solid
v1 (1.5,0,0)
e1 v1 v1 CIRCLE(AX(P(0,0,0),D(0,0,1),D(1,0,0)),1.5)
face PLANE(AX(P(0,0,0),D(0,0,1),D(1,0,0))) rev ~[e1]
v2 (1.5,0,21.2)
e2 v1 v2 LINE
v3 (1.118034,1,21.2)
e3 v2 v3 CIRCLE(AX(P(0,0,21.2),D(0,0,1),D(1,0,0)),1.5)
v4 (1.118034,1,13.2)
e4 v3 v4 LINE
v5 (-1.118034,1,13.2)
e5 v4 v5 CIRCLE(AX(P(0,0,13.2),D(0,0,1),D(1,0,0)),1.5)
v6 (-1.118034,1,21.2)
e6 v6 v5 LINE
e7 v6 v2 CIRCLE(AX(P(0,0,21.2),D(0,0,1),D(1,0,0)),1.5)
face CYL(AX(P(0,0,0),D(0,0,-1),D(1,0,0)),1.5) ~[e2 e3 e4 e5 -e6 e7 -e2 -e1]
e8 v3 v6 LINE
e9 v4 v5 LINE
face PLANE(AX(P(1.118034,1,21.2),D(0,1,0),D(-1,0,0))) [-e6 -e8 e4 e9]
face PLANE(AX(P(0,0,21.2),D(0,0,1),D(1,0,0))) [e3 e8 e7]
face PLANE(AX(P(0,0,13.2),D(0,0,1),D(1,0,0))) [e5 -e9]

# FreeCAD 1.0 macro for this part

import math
import FreeCAD as App
import Part
import Sketcher
Q = App.Units.Quantity

doc = App.newDocument("Part")
body = doc.addObject("PartDesign::Body", "Body")

# Sketch on XY plane
sketch1 = body.newObject("Sketcher::SketchObject", "Sketch")
sketch1.AttachmentSupport = (doc.getObject("XY_Plane"), [""])
sketch1.MapMode = "FlatFace"
sketch1.addGeometry(Part.Circle(App.Vector(0, 0, 0), App.Vector(0, 0, 1), 1.5), False)
sketch1.addConstraint([
    Sketcher.Constraint("Coincident", 0, 3, -1, 1),
    Sketcher.Constraint("Diameter", 0, Q("3 mm")),
])
pad1 = body.newObject("PartDesign::Pad", "Pad")
pad1.Profile = sketch1
pad1.Length = 21.2

# Sketch on XY plane
sketch2 = body.newObject("Sketcher::SketchObject", "Sketch001")
sketch2.AttachmentSupport = (doc.getObject("XY_Plane"), [""])
sketch2.MapMode = "FlatFace"
sketch2.AttachmentOffset = App.Placement(App.Vector(0, 0, 21.2), App.Rotation())
sketch2.addGeometry([
    Part.ArcOfCircle(Part.Circle(App.Vector(0, 0, 0), App.Vector(0, 0, 1), 1.5), math.radians(42), math.radians(138)),
    Part.LineSegment(App.Vector(-1.1, 1, 0), App.Vector(1.1, 1, 0)),
], False)
sketch2.addConstraint([
    Sketcher.Constraint("Coincident", 0, 1, 1, 2),
    Sketcher.Constraint("Coincident", 1, 1, 0, 2),
    Sketcher.Constraint("Horizontal", 1),
    Sketcher.Constraint("Coincident", 0, 3, -1, 1),
    Sketcher.Constraint("Radius", 0, Q("1.5 mm")),
    Sketcher.Constraint("DistanceY", -1, 1, 0, 1, Q("1 mm")),
])
pocket1 = body.newObject("PartDesign::Pocket", "Pocket")
pocket1.Profile = sketch2
pocket1.Length = 8

doc.recompute()
